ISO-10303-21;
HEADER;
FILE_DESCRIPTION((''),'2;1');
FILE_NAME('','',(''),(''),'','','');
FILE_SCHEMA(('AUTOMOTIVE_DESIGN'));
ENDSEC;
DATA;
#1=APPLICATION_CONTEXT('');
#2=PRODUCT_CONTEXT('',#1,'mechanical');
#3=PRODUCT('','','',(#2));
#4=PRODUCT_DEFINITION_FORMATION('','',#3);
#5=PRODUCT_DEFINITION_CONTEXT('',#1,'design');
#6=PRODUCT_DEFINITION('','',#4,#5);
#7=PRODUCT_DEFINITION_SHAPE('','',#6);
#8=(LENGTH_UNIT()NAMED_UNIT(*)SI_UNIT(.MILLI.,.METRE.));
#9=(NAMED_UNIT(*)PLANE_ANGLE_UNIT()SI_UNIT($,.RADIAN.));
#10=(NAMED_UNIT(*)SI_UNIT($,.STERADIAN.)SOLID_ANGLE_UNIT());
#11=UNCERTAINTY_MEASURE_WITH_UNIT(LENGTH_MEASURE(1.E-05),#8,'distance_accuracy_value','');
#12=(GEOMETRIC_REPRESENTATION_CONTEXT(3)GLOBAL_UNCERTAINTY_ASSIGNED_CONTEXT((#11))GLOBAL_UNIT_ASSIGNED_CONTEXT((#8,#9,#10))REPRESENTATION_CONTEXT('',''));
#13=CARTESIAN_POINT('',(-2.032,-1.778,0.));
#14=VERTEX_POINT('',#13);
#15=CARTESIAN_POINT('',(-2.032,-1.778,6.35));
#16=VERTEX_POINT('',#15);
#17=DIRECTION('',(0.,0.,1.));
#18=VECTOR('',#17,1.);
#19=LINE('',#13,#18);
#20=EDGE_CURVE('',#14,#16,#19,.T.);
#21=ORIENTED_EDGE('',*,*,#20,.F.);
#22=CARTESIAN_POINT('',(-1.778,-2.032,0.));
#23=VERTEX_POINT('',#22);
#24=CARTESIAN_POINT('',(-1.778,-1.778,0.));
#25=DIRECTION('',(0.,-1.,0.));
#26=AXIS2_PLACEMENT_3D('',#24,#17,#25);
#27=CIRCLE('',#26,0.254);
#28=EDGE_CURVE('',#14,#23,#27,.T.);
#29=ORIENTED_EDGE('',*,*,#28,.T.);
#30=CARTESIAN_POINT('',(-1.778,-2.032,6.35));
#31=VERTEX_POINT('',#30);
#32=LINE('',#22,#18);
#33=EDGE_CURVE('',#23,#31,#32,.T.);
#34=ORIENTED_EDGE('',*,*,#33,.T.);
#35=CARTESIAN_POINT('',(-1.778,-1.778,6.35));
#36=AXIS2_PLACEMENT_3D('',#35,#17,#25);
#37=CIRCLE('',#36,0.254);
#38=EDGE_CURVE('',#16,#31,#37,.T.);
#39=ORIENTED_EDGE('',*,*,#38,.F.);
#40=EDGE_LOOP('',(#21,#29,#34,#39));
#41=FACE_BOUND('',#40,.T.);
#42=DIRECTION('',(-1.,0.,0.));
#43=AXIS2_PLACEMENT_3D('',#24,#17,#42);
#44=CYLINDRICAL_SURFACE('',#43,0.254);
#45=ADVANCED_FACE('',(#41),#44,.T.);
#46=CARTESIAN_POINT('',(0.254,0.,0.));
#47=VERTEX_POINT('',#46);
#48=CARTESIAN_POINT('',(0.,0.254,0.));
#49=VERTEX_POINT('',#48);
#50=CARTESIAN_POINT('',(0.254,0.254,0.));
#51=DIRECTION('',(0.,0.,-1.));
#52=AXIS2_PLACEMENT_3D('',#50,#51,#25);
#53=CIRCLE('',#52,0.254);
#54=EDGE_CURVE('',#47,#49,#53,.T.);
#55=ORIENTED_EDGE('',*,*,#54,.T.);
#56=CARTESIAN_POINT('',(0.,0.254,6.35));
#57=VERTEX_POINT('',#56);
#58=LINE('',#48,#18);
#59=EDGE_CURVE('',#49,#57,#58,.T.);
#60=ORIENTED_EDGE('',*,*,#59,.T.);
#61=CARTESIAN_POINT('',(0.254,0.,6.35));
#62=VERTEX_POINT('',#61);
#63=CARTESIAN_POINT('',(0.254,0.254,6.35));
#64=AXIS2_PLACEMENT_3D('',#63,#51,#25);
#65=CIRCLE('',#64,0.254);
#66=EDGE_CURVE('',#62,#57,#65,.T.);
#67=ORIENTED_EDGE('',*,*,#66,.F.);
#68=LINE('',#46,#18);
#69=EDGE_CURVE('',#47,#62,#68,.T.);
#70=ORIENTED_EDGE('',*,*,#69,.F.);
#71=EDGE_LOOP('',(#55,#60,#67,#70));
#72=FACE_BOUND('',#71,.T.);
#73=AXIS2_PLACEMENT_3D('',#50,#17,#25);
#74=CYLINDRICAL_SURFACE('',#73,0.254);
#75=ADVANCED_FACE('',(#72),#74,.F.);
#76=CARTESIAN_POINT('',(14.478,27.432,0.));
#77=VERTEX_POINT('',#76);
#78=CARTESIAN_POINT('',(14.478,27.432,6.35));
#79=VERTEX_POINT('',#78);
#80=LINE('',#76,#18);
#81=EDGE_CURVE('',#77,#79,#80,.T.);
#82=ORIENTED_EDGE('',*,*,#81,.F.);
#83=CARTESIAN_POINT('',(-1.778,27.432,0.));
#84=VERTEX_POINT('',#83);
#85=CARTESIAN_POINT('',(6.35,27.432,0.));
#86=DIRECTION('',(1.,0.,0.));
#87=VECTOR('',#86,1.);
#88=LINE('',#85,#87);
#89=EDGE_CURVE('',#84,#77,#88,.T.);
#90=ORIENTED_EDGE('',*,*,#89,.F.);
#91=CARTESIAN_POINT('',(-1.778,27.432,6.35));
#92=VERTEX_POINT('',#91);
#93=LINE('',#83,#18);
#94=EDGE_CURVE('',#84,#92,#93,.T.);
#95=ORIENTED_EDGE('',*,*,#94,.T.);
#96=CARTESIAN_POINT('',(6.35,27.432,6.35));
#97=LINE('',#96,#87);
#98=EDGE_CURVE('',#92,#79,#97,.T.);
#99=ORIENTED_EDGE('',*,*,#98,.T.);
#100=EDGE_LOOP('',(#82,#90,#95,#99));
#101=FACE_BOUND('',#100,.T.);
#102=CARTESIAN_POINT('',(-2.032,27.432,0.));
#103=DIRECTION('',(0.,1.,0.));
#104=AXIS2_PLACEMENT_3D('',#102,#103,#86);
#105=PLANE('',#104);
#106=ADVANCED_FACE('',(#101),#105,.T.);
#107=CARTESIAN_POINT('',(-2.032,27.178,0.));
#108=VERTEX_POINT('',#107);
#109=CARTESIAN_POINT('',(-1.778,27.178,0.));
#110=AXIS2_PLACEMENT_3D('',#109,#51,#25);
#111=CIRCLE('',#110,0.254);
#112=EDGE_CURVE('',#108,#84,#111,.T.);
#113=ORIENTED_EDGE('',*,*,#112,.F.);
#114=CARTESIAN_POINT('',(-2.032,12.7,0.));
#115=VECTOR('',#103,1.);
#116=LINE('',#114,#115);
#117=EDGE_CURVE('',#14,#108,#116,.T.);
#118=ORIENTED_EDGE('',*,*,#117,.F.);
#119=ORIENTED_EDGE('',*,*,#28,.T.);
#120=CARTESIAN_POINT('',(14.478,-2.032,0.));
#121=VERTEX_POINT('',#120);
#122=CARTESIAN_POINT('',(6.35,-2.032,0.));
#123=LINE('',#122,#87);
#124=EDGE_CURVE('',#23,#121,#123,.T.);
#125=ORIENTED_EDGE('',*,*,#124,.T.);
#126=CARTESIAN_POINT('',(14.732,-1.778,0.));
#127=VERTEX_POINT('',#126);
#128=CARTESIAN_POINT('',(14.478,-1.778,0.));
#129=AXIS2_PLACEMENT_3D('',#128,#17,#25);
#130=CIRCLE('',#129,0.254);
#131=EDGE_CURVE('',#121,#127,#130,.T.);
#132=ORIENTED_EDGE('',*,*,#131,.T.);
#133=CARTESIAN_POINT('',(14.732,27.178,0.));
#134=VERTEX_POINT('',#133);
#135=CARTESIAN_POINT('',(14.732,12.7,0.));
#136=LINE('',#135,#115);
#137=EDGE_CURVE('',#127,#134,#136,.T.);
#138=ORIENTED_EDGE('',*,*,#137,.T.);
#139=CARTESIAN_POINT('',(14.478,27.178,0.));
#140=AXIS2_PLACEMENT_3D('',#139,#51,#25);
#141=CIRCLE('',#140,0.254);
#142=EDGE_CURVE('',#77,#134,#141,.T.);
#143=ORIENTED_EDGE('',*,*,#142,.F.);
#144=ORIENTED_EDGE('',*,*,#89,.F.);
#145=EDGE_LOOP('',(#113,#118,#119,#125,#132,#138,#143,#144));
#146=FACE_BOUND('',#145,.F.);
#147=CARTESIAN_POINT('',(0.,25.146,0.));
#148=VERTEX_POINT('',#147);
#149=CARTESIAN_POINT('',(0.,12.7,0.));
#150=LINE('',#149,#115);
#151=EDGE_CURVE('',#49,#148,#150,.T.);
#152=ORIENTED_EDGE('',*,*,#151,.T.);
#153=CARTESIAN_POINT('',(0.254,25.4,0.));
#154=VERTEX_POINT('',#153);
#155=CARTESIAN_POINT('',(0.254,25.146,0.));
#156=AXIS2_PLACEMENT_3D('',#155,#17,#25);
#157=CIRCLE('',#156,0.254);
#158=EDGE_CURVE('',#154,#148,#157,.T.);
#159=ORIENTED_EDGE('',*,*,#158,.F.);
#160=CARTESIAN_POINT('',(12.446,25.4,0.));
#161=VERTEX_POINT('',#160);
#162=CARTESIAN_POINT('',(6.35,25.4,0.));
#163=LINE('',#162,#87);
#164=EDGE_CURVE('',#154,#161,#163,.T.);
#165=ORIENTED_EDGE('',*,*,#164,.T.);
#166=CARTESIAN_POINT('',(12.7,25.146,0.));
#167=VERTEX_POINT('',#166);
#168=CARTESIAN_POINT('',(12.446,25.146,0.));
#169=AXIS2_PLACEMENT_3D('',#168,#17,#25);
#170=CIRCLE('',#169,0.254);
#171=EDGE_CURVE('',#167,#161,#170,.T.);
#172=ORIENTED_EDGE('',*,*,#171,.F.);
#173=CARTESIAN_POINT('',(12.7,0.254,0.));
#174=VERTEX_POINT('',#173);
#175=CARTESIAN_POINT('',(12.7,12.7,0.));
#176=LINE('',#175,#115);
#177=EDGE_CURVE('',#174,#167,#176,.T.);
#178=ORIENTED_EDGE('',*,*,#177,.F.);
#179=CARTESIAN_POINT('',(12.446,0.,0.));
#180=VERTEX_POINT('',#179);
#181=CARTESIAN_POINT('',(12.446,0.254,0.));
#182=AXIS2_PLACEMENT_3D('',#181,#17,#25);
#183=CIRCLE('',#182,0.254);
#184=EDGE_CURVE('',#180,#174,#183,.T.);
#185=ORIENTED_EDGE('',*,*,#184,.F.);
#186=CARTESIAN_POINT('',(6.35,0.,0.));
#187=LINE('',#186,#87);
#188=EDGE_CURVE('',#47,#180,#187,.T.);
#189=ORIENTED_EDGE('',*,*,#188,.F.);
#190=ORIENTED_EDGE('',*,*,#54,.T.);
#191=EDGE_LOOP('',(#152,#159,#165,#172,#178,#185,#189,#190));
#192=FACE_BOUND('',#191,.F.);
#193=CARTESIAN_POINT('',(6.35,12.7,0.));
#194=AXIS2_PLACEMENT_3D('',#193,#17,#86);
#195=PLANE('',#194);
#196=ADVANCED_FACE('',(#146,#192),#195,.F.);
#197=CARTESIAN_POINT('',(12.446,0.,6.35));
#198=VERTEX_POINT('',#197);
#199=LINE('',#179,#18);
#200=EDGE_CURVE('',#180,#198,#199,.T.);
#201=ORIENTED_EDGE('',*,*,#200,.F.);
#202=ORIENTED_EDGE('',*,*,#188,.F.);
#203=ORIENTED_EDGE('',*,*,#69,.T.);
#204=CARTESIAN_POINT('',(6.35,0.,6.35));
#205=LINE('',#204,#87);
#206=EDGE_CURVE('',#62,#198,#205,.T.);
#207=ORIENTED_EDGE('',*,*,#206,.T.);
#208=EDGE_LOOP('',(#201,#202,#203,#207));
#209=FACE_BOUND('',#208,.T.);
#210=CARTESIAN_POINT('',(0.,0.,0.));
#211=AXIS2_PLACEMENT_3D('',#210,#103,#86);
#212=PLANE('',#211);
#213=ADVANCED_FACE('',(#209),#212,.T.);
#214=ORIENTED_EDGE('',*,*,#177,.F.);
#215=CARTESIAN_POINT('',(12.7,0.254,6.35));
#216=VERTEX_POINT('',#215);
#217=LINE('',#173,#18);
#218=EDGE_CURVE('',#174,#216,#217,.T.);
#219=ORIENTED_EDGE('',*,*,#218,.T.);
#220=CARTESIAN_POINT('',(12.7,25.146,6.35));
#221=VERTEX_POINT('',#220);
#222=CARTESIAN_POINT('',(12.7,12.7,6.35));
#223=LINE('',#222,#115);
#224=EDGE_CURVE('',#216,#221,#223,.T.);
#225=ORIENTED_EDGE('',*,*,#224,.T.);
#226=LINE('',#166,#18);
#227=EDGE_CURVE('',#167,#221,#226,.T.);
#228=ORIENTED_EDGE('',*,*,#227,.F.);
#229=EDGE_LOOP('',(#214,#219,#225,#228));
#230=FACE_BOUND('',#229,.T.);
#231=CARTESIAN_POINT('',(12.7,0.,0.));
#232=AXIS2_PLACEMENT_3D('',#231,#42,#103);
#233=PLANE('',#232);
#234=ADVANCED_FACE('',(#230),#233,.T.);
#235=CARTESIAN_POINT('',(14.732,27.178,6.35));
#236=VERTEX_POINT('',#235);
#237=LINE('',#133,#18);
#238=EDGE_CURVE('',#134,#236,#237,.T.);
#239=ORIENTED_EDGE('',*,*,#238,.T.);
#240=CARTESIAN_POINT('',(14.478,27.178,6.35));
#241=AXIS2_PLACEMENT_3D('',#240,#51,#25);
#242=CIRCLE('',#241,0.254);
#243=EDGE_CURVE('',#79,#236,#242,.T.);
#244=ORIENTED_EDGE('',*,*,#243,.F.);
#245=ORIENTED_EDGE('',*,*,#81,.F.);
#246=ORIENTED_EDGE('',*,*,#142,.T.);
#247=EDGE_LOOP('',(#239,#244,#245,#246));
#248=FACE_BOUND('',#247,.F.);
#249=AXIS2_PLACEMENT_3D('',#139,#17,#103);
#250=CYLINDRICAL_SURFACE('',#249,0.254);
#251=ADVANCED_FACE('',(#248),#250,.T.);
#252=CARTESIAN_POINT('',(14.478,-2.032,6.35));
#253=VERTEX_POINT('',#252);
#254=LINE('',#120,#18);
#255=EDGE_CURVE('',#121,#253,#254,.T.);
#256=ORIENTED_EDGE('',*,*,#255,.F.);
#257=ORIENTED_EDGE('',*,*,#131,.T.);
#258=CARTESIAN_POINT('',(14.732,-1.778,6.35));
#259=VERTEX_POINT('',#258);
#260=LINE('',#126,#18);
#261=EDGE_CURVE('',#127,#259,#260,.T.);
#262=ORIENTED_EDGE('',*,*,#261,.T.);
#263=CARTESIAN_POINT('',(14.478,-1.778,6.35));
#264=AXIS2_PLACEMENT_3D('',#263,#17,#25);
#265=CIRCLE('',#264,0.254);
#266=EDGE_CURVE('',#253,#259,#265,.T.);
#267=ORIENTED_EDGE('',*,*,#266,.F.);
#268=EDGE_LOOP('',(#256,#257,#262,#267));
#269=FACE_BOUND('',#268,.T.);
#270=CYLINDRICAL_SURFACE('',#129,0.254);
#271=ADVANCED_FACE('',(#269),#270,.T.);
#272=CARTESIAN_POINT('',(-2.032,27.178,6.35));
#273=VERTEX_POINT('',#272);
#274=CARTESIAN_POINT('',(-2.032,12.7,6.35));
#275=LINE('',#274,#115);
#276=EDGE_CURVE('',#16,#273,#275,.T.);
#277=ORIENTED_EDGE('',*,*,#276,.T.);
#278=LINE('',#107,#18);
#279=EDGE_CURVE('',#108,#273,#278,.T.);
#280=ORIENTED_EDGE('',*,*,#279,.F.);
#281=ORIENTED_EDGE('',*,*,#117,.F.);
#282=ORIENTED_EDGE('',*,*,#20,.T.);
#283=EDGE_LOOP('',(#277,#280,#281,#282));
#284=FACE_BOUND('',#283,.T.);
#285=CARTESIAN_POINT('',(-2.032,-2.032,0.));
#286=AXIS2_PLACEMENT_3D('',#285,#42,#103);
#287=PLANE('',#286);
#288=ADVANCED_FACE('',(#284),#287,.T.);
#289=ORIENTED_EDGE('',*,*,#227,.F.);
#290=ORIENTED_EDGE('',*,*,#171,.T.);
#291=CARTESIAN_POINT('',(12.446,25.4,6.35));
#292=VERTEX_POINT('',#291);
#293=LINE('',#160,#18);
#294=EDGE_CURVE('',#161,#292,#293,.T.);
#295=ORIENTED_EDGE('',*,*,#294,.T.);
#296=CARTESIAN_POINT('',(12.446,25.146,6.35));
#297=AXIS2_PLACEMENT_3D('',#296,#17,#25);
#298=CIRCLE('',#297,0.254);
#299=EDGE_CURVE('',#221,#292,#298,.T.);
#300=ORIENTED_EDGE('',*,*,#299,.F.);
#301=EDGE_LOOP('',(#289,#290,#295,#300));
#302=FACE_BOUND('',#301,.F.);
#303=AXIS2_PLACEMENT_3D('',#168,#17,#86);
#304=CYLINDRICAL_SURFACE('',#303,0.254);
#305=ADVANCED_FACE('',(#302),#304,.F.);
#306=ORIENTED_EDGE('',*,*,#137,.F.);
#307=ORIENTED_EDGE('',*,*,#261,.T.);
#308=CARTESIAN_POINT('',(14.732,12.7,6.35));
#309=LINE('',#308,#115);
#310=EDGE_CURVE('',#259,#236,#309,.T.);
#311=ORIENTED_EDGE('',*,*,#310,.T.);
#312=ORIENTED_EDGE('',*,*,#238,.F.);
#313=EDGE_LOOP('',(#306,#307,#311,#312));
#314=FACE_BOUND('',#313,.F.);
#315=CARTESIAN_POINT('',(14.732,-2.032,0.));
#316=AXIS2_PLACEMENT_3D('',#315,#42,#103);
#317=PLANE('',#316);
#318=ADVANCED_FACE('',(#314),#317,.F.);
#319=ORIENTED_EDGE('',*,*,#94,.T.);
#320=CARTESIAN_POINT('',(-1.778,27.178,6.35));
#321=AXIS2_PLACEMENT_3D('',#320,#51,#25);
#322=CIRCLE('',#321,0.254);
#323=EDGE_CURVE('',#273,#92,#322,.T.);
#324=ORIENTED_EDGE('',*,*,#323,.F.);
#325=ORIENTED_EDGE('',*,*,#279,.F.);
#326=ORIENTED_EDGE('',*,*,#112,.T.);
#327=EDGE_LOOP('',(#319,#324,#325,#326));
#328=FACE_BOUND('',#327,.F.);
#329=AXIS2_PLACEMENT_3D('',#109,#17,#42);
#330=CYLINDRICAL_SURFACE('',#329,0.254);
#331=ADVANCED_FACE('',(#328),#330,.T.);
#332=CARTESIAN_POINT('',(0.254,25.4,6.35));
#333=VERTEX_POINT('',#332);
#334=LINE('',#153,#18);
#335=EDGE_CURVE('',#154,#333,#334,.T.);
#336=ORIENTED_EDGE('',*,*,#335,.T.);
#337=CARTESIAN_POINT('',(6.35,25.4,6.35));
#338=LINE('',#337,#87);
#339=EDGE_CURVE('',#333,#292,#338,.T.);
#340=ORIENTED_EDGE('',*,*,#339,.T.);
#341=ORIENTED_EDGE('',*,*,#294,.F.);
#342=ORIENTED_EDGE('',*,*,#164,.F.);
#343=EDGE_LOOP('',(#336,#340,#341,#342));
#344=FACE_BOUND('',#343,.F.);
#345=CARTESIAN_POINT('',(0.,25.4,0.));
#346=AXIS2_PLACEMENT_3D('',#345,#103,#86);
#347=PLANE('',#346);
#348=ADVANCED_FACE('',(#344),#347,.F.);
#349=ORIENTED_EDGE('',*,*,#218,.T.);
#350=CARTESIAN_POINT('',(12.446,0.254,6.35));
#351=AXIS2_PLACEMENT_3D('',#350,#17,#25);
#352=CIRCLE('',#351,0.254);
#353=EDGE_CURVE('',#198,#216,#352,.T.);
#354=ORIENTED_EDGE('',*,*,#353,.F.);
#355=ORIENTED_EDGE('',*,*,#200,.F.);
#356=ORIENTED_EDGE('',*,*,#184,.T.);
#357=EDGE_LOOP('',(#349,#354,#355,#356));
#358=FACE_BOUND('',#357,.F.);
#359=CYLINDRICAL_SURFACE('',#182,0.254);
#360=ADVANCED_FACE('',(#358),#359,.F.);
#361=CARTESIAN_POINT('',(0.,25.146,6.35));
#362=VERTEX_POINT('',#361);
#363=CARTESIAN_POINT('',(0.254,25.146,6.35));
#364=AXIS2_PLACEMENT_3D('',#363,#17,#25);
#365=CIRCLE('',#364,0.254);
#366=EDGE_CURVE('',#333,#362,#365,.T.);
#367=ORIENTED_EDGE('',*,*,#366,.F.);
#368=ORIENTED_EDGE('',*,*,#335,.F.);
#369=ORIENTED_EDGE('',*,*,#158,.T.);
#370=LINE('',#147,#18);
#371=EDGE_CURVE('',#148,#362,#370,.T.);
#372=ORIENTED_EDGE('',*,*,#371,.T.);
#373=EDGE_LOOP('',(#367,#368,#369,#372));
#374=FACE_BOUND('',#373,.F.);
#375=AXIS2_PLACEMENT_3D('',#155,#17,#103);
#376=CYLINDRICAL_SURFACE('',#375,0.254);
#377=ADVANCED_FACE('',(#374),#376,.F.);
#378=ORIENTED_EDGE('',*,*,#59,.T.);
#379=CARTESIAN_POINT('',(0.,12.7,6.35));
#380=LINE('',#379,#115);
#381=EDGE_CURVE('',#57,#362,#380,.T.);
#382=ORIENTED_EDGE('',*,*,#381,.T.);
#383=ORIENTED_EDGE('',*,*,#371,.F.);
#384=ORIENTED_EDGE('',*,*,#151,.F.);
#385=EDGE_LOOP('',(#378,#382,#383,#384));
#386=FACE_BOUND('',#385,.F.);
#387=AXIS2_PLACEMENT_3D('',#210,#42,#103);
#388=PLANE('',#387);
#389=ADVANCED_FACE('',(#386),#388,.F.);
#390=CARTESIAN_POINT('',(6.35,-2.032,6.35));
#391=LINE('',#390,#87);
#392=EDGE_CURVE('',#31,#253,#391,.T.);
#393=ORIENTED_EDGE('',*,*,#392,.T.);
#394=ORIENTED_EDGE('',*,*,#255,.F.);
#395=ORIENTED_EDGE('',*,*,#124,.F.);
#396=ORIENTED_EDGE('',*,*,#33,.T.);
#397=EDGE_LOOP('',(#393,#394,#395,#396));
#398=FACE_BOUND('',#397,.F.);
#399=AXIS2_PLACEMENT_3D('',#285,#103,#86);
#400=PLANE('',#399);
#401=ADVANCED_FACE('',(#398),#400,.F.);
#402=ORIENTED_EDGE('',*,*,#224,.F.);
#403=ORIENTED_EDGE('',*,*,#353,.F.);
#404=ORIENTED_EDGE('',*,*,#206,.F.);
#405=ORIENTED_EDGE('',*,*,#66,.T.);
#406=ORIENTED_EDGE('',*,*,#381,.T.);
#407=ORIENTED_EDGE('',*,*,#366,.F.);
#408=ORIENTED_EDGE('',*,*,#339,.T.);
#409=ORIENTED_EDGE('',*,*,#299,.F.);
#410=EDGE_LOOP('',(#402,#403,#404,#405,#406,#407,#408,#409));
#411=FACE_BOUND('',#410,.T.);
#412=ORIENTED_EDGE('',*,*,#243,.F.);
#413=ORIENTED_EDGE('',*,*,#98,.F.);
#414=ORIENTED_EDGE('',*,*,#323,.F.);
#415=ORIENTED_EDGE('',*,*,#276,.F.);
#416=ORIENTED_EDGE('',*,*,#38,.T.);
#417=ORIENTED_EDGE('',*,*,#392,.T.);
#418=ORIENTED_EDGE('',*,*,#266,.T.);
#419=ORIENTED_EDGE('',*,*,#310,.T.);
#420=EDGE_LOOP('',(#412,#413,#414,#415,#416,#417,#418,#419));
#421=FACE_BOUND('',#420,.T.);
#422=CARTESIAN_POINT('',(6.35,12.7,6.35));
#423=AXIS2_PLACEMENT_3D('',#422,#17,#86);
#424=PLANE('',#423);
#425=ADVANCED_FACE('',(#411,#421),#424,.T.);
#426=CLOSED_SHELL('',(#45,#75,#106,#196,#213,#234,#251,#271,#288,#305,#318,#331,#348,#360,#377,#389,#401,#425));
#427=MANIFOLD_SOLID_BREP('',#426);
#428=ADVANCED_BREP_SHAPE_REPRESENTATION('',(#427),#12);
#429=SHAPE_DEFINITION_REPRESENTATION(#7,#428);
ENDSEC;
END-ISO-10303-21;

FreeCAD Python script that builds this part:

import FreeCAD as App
import Part
import Sketcher
from FreeCAD import Vector
Q = App.Units.Quantity


def edges_at(feature, points):
    """Names of the edges that pass closest to the given points."""
    edges = feature.Shape.Edges
    near = lambda p: min(range(len(edges)), key=lambda i: edges[i].distToShape(Part.Vertex(*p))[0])
    return sorted({f"Edge{near(p) + 1}" for p in points})

doc = App.newDocument("Part")
body = doc.addObject("PartDesign::Body", "Body")

sketch1 = body.newObject("Sketcher::SketchObject", "Sketch")
sketch1.AttachmentSupport = (doc.getObject("XY_Plane"), [""])
sketch1.MapMode = "FlatFace"
sketch1.addGeometry([
    Part.LineSegment(Vector(-2.032, 27.432, 0), Vector(-2.032, -2.032, 0)),
    Part.LineSegment(Vector(-2.032, -2.032, 0), Vector(14.732, -2.032, 0)),
    Part.LineSegment(Vector(14.732, -2.032, 0), Vector(14.732, 27.432, 0)),
    Part.LineSegment(Vector(14.732, 27.432, 0), Vector(-2.032, 27.432, 0)),
    Part.LineSegment(Vector(12.7, 0, 0), Vector(0, 0, 0)),
    Part.LineSegment(Vector(0, 0, 0), Vector(0, 25.4, 0)),
    Part.LineSegment(Vector(0, 25.4, 0), Vector(12.7, 25.4, 0)),
    Part.LineSegment(Vector(12.7, 25.4, 0), Vector(12.7, 0, 0)),
], False)
sketch1.addConstraint([
    Sketcher.Constraint("Coincident", 0, 2, 1, 1),
    Sketcher.Constraint("Coincident", 1, 2, 2, 1),
    Sketcher.Constraint("Coincident", 2, 2, 3, 1),
    Sketcher.Constraint("Coincident", 3, 2, 0, 1),
    Sketcher.Constraint("Coincident", 4, 2, 5, 1),
    Sketcher.Constraint("Coincident", 5, 2, 6, 1),
    Sketcher.Constraint("Coincident", 6, 2, 7, 1),
    Sketcher.Constraint("Coincident", 7, 2, 4, 1),
    Sketcher.Constraint("Vertical", 0),
    Sketcher.Constraint("Horizontal", 1),
    Sketcher.Constraint("Vertical", 2),
    Sketcher.Constraint("Horizontal", 3),
    Sketcher.Constraint("Horizontal", 4),
    Sketcher.Constraint("Vertical", 5),
    Sketcher.Constraint("Horizontal", 6),
    Sketcher.Constraint("Vertical", 7),
    Sketcher.Constraint("Coincident", 4, 2, -1, 1),
    Sketcher.Constraint("DistanceY", 5, 1, 5, 2, Q("1 in")),
    Sketcher.Constraint("DistanceX", 4, 2, 4, 1, Q("0.5 in")),
    Sketcher.Constraint("DistanceX", 1, 1, 1, 2, Q("0.66 in")),
    Sketcher.Constraint("DistanceY", 0, 2, 0, 1, Q("1.16 in")),
    Sketcher.Constraint("DistanceX", 0, 2, -1, 1, Q("0.08 in")),
    Sketcher.Constraint("DistanceY", 0, 2, -1, 1, Q("0.08 in")),
])
pad1 = body.newObject("PartDesign::Pad", "Pad")
pad1.Profile = sketch1
pad1.Length = Q("0.25 in")
doc.recompute()

fillet = body.newObject("PartDesign::Fillet", "Fillet")
fillet.Base = (pad1, edges_at(pad1, [
    (14.732, -2.032, 3.175),
    (-2.032, -2.032, 3.175),
    (14.732, 27.432, 3.175),
    (-2.032, 27.432, 3.175),
    (12.7, 0, 3.175),
    (12.7, 25.4, 3.175),
    (0, 25.4, 3.175),
    (0, 0, 3.175),
]))
fillet.Radius = Q("0.01 in")

doc.recompute()
